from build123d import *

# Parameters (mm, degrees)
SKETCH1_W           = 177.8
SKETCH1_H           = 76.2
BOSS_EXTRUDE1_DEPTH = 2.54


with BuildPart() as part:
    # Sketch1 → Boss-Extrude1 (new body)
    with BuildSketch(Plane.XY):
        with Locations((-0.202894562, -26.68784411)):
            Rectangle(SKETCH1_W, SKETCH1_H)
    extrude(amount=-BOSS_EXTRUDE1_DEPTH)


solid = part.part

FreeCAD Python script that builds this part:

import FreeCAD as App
import Part
import Sketcher

V = App.Vector
Q = App.Units.Quantity

doc = App.newDocument("Part")
body = doc.addObject("PartDesign::Body", "Body")

sketch1 = body.newObject("Sketcher::SketchObject", "Sketch")
sketch1.AttachmentSupport = (doc.getObject("XY_Plane"), [""])
sketch1.MapMode = "FlatFace"
sketch1.addGeometry(Part.LineSegment(V(-89, 11, 0), V(-89, -65, 0)), False)
sketch1.addGeometry(Part.LineSegment(V(-89, -65, 0), V(89, -65, 0)), False)
sketch1.addGeometry(Part.LineSegment(V(89, -65, 0), V(89, 11, 0)), False)
sketch1.addGeometry(Part.LineSegment(V(89, 11, 0), V(-89, 11, 0)), False)
sketch1.addConstraint(Sketcher.Constraint("Coincident", 0, 2, 1, 1))
sketch1.addConstraint(Sketcher.Constraint("Coincident", 1, 2, 2, 1))
sketch1.addConstraint(Sketcher.Constraint("Coincident", 2, 2, 3, 1))
sketch1.addConstraint(Sketcher.Constraint("Coincident", 3, 2, 0, 1))
sketch1.addConstraint(Sketcher.Constraint("Vertical", 0))
sketch1.addConstraint(Sketcher.Constraint("Horizontal", 1))
sketch1.addConstraint(Sketcher.Constraint("Vertical", 2))
sketch1.addConstraint(Sketcher.Constraint("Horizontal", 3))
sketch1.addConstraint(Sketcher.Constraint("DistanceX", 1, 1, 1, 2, Q("7 in")))
sketch1.addConstraint(Sketcher.Constraint("DistanceY", 0, 2, 0, 1, Q("3 in")))
sketch1.addConstraint(Sketcher.Constraint("DistanceX", 0, 2, -1, 1, 89.102895))
sketch1.addConstraint(Sketcher.Constraint("DistanceY", 0, 2, -1, 1, 64.787844))
pad1 = body.newObject("PartDesign::Pad", "Pad")
pad1.Profile = sketch1
pad1.Length = Q("0.1 in")
pad1.Reversed = True

doc.recompute()
